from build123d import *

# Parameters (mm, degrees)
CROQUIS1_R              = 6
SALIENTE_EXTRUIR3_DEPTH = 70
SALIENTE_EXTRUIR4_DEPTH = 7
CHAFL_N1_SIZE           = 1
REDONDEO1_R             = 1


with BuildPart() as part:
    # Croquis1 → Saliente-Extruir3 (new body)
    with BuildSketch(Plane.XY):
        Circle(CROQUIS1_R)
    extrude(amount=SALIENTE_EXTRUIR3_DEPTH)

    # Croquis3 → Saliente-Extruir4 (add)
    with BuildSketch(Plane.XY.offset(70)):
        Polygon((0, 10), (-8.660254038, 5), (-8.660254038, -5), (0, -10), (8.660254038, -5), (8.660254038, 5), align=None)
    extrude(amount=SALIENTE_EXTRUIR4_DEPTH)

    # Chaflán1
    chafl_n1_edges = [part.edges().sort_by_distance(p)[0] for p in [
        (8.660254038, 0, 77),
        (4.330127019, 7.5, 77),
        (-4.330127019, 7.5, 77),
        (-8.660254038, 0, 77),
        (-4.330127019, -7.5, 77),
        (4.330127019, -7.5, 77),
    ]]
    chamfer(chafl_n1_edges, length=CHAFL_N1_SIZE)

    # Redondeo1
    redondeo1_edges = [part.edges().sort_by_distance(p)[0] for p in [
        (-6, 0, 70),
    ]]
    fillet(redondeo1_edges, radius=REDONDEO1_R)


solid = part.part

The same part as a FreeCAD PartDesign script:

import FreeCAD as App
import Part
import Sketcher

V = App.Vector
Q = App.Units.Quantity


def edges_at(feature, points):
    """Names of the edges that pass closest to the given points."""
    edges = feature.Shape.Edges
    near = lambda p: min(range(len(edges)), key=lambda i: edges[i].distToShape(Part.Vertex(*p))[0])
    return sorted({f"Edge{near(p) + 1}" for p in points})


def add_polygon(sketch, points):
    """Adds a closed chain of lines whose ends are joined by coincident constraints."""
    first, n = sketch.GeometryCount, len(points)
    for a, b in zip(points, points[1:] + points[:1]):
        sketch.addGeometry(Part.LineSegment(App.Vector(*a, 0), App.Vector(*b, 0)), False)
    for i in range(n):
        sketch.addConstraint(Sketcher.Constraint("Coincident", first + i, 2, first + (i + 1) % n, 1))

doc = App.newDocument("Part")
params = doc.addObject("Spreadsheet::Sheet", "Params")
for row, (alias, value) in enumerate([
    ("sketch1_diameter", "12 mm"),
    ("pad1_length", "70 mm"),
    ("sketch2_height", "10 mm"),
    ("sketch2_length", "10 mm"),
    ("pad2_length", "7 mm"),
    ("chamfer_size", "1 mm"),
    ("fillet_radius", "1 mm"),
], start=1):
    params.set(f"A{row}", alias)
    params.set(f"B{row}", "=" + value)
    params.setAlias(f"B{row}", alias)

body = doc.addObject("PartDesign::Body", "Body")

sketch1 = body.newObject("Sketcher::SketchObject", "Sketch")
sketch1.AttachmentSupport = (doc.getObject("XY_Plane"), [""])
sketch1.MapMode = "FlatFace"
sketch1.addGeometry(Part.Circle(V(0, 0, 0), V(0, 0, 1), 6), False)
sketch1.addConstraint([
    Sketcher.Constraint("Coincident", 0, 3, -1, 1),
    Sketcher.Constraint("Diameter", 0, 12.0),
])
sketch1.setExpression("Constraints[1]", "Params.sketch1_diameter")
pad1 = body.newObject("PartDesign::Pad", "Pad")
pad1.Profile = sketch1
pad1.setExpression("Length", "Params.pad1_length")

sketch2 = body.newObject("Sketcher::SketchObject", "Sketch001")
sketch2.AttachmentSupport = (doc.getObject("XY_Plane"), [""])
sketch2.MapMode = "FlatFace"
sketch2.AttachmentOffset = App.Placement(V(0, 0, 70), App.Rotation())
add_polygon(sketch2, [(0, 10), (-9, 5), (-9, -5), (0, -10), (9, -5), (9, 5)])
sketch2.addConstraint([
    Sketcher.Constraint("Vertical", 1),
    Sketcher.Constraint("Vertical", 4),
    Sketcher.Constraint("Symmetric", 0, 2, 3, 2, -1, 1),
    Sketcher.Constraint("Symmetric", 2, 2, 5, 2, -1, 1),
    Sketcher.Constraint("PointOnObject", 2, 2, -2),
    Sketcher.Constraint("Parallel", 2, 5),
    Sketcher.Constraint("Horizontal", 1, 2, 3, 2),
    Sketcher.Constraint("DistanceY", 1, 2, 1, 1, 10.0),
    Sketcher.Constraint("Angle", 0, Q("-150 deg")),
    Sketcher.Constraint("Distance", 0, 10.0),
])
sketch2.setExpression("Constraints[13]", "Params.sketch2_height")
sketch2.setExpression("Constraints[15]", "Params.sketch2_length")
pad2 = body.newObject("PartDesign::Pad", "Pad001")
pad2.Profile = sketch2
pad2.setExpression("Length", "Params.pad2_length")
doc.recompute()

chamfer = body.newObject("PartDesign::Chamfer", "Chamfer")
chamfer.Base = (pad2, edges_at(pad2, [
    (8.66, 0, 77),
    (4.33, 7.5, 77),
    (-4.33, 7.5, 77),
    (-8.66, 0, 77),
    (-4.33, -7.5, 77),
    (4.33, -7.5, 77),
]))
chamfer.setExpression("Size", "Params.chamfer_size")
doc.recompute()

fillet = body.newObject("PartDesign::Fillet", "Fillet")
fillet.Base = (chamfer, edges_at(chamfer, [(-6, 0, 70)]))
fillet.setExpression("Radius", "Params.fillet_radius")

doc.recompute()
